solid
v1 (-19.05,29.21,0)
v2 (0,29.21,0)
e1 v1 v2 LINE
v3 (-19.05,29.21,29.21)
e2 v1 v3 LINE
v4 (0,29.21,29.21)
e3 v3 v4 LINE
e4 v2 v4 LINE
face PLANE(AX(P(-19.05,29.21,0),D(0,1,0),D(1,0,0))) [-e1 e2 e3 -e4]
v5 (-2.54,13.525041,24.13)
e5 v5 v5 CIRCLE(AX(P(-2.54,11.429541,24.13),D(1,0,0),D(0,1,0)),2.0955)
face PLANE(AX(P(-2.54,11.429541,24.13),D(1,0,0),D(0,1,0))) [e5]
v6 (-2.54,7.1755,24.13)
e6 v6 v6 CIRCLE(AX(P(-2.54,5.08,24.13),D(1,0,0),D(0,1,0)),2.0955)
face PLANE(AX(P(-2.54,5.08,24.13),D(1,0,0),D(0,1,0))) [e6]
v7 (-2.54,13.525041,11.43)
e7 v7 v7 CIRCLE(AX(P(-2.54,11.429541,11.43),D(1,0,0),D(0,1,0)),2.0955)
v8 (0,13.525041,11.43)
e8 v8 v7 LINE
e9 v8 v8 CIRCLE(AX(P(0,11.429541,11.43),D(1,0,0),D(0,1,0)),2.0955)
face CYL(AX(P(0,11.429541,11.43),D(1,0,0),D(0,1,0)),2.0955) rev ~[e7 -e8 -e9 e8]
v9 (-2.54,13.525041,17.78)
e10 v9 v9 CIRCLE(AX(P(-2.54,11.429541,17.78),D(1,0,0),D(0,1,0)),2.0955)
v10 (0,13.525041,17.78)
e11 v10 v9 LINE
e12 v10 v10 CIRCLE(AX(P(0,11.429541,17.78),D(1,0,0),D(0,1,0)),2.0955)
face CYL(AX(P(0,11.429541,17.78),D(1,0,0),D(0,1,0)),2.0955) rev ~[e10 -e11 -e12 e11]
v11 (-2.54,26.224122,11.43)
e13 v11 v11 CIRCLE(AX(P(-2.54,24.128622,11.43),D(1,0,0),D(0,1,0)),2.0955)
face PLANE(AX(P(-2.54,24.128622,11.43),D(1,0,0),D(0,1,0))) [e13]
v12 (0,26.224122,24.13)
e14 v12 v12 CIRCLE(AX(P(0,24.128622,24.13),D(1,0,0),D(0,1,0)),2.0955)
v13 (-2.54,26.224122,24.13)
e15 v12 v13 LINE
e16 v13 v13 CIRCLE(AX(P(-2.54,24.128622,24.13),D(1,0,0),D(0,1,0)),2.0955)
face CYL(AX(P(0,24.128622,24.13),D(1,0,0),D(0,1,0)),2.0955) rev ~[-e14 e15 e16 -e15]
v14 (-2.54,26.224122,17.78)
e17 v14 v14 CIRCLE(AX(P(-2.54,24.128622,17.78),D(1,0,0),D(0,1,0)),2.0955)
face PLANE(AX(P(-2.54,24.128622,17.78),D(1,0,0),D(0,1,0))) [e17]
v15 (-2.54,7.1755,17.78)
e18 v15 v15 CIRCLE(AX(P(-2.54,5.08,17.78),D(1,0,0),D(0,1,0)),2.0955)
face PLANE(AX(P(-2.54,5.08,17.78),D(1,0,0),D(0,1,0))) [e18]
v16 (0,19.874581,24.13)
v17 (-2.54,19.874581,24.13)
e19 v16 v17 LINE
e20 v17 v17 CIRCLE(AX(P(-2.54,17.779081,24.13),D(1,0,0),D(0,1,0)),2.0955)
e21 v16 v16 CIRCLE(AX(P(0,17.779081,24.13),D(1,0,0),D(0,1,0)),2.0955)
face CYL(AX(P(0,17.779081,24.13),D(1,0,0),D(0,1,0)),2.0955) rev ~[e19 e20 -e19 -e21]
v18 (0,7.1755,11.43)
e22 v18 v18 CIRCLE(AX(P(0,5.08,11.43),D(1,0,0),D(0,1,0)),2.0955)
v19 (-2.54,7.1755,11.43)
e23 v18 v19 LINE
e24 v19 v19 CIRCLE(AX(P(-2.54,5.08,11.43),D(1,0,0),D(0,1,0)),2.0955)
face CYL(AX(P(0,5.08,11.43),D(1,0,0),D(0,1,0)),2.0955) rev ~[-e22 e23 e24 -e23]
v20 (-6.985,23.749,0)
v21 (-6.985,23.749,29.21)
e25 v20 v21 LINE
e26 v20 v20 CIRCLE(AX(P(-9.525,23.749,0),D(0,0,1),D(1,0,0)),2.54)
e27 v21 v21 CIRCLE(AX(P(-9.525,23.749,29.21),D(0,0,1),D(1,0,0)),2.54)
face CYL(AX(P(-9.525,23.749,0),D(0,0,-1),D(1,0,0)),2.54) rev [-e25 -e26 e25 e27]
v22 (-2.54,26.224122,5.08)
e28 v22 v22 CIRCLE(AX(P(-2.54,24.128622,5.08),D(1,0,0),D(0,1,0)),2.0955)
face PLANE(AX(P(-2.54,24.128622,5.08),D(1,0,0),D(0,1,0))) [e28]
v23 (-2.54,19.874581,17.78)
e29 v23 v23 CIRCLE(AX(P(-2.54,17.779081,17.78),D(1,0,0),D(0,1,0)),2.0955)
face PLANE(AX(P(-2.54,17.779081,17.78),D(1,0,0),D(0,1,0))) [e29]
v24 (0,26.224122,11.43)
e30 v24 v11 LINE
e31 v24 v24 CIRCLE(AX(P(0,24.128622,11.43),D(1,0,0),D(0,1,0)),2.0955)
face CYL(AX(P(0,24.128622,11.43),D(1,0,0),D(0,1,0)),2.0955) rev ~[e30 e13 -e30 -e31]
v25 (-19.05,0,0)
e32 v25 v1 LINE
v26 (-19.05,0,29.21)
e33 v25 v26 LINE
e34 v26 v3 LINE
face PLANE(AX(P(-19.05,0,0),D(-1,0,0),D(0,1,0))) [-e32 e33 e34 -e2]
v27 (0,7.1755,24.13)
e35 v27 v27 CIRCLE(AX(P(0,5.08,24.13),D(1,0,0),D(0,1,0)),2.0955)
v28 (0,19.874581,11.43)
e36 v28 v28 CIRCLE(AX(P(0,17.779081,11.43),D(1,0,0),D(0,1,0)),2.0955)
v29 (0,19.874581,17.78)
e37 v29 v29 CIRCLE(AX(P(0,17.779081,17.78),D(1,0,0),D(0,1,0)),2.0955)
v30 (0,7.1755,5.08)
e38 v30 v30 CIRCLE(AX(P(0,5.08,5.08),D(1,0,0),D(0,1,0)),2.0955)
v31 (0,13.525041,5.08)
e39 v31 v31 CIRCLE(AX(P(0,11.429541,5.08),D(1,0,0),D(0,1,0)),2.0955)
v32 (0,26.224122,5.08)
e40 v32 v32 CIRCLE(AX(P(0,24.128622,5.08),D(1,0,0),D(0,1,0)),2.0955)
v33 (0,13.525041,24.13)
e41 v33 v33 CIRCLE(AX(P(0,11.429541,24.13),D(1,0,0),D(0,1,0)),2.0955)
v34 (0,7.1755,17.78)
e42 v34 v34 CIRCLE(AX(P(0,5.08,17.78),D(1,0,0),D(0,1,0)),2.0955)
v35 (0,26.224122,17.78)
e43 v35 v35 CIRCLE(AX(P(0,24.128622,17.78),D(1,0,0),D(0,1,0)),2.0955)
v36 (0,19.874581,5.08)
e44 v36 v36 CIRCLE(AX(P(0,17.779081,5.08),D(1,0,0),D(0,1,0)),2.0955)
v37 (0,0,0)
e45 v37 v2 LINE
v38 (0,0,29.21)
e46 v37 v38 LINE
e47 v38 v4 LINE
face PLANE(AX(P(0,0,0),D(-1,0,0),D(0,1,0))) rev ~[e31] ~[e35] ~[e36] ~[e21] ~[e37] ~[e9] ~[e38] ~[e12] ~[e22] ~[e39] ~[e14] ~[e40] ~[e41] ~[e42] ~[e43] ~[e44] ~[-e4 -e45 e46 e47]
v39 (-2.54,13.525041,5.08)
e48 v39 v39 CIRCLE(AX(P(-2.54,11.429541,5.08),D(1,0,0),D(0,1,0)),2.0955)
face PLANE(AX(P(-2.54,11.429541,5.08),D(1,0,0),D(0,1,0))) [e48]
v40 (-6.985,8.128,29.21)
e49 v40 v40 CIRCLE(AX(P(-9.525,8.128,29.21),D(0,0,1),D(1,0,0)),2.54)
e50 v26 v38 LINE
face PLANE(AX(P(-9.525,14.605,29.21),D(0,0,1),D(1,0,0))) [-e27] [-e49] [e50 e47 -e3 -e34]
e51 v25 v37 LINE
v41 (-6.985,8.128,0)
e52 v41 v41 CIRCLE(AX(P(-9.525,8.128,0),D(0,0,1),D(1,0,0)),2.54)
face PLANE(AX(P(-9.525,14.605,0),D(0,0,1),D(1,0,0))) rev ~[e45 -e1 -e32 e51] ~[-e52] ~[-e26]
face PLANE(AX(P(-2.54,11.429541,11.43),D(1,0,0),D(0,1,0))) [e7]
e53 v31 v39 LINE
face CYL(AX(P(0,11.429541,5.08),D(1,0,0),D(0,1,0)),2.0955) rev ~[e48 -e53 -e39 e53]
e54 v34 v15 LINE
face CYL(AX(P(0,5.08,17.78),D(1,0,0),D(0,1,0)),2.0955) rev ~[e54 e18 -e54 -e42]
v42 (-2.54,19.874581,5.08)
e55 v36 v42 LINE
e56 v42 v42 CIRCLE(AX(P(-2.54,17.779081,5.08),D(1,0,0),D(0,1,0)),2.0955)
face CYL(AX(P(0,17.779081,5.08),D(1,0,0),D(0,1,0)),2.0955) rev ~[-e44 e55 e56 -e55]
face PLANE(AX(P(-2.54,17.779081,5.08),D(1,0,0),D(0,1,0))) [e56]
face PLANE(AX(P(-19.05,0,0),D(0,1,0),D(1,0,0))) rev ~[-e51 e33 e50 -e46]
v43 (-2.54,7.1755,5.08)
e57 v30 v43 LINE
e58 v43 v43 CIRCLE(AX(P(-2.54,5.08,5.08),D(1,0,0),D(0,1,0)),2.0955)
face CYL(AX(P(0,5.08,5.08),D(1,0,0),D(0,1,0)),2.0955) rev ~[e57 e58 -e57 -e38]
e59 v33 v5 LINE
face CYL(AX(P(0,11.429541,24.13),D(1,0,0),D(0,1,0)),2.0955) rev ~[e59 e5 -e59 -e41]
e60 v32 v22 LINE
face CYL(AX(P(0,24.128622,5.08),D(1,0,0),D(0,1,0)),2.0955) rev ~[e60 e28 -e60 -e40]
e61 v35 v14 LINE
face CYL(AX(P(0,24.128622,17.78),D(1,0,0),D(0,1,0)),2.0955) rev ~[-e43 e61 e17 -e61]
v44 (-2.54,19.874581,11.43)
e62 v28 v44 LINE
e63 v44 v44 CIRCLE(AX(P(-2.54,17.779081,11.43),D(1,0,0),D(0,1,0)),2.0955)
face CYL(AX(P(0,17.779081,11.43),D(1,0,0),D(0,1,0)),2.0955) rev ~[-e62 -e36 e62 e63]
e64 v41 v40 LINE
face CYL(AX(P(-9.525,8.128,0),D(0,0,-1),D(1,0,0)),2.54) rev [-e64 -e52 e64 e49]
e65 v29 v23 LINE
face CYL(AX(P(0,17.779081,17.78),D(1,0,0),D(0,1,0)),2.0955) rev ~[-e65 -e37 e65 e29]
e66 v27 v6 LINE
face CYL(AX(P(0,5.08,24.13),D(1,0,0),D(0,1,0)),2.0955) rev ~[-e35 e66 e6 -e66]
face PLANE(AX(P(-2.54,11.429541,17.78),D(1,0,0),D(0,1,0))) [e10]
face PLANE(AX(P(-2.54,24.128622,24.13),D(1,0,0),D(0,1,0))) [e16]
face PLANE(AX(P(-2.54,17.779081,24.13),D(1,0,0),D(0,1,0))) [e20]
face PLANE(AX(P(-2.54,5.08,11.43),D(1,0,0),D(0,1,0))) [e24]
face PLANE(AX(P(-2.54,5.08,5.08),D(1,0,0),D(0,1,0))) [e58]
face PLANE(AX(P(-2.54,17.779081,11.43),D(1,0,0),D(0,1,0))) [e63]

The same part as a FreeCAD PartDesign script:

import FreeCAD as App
import Part
import Sketcher
from FreeCAD import Vector
Q = App.Units.Quantity


def add_polygon(sketch, points):
    """Adds a closed chain of lines whose ends are joined by coincident constraints."""
    first, n = sketch.GeometryCount, len(points)
    for a, b in zip(points, points[1:] + points[:1]):
        sketch.addGeometry(Part.LineSegment(App.Vector(*a, 0), App.Vector(*b, 0)), False)
    for i in range(n):
        sketch.addConstraint(Sketcher.Constraint("Coincident", first + i, 2, first + (i + 1) % n, 1))

doc = App.newDocument("Part")
body = doc.addObject("PartDesign::Body", "Body")

# Sketch on XY plane
sketch1 = body.newObject("Sketcher::SketchObject", "Sketch")
sketch1.AttachmentSupport = (doc.getObject("XY_Plane"), [""])
sketch1.MapMode = "FlatFace"
add_polygon(sketch1, [(-19.05, 29.21), (-19.05, 0), (0, 0), (0, 29.21)])  # lines 0-3
sketch1.addGeometry(Part.Circle(Vector(-9.525, 8.128, 0), Vector(0, 0, 1), 2.54), False)  # 4
sketch1.addGeometry(Part.Circle(Vector(-9.525, 23.749, 0), Vector(0, 0, 1), 2.54), False)  # 5
sketch1.addConstraint(Sketcher.Constraint("Vertical", 0))
sketch1.addConstraint(Sketcher.Constraint("Horizontal", 1))
sketch1.addConstraint(Sketcher.Constraint("Vertical", 2))
sketch1.addConstraint(Sketcher.Constraint("Horizontal", 3))
sketch1.addConstraint(Sketcher.Constraint("Coincident", 1, 2, -1, 1))
sketch1.addConstraint(Sketcher.Constraint("Equal", 4, 5))
sketch1.addConstraint(Sketcher.Constraint("Vertical", 4, 3, 5, 3))
sketch1.addConstraint(Sketcher.Constraint("Diameter", 4, Q("0.2 in")))
sketch1.addConstraint(Sketcher.Constraint("DistanceX", 1, 1, 1, 2, Q("0.75 in")))
sketch1.addConstraint(Sketcher.Constraint("DistanceY", 0, 2, 0, 1, Q("1.15 in")))
sketch1.addConstraint(Sketcher.Constraint("DistanceY", -1, 1, 4, 3, Q("0.32 in")))
sketch1.addConstraint(Sketcher.Constraint("DistanceX", 4, 3, -1, 1, Q("0.375 in")))
sketch1.addConstraint(Sketcher.Constraint("DistanceY", -1, 1, 5, 3, Q("0.935 in")))
pad1 = body.newObject("PartDesign::Pad", "Pad")
pad1.Profile = sketch1
pad1.Length = Q("1.15 in")

# Sketch on YZ plane
sketch2 = body.newObject("Sketcher::SketchObject", "Sketch001")
sketch2.AttachmentSupport = (doc.getObject("YZ_Plane"), [""])
sketch2.MapMode = "FlatFace"
sketch2.addGeometry(Part.Circle(Vector(5.08, 24.13, 0), Vector(0, 0, 1), 2.0955), False)
sketch2.addGeometry(Part.Circle(Vector(11.429541, 24.13, 0), Vector(0, 0, 1), 2.0955), False)
sketch2.addGeometry(Part.Circle(Vector(17.779081, 24.13, 0), Vector(0, 0, 1), 2.0955), False)
sketch2.addGeometry(Part.Circle(Vector(24.128622, 24.13, 0), Vector(0, 0, 1), 2.0955), False)
sketch2.addGeometry(Part.Circle(Vector(24.128622, 17.78, 0), Vector(0, 0, 1), 2.0955), False)
sketch2.addGeometry(Part.Circle(Vector(17.779081, 17.78, 0), Vector(0, 0, 1), 2.0955), False)
sketch2.addGeometry(Part.Circle(Vector(11.429541, 17.78, 0), Vector(0, 0, 1), 2.0955), False)
sketch2.addGeometry(Part.Circle(Vector(5.08, 17.78, 0), Vector(0, 0, 1), 2.0955), False)
sketch2.addGeometry(Part.Circle(Vector(24.128622, 11.43, 0), Vector(0, 0, 1), 2.0955), False)
sketch2.addGeometry(Part.Circle(Vector(17.779081, 11.43, 0), Vector(0, 0, 1), 2.0955), False)
sketch2.addGeometry(Part.Circle(Vector(11.429541, 11.43, 0), Vector(0, 0, 1), 2.0955), False)
sketch2.addGeometry(Part.Circle(Vector(5.08, 11.43, 0), Vector(0, 0, 1), 2.0955), False)
sketch2.addGeometry(Part.Circle(Vector(24.128622, 5.08, 0), Vector(0, 0, 1), 2.0955), False)
sketch2.addGeometry(Part.Circle(Vector(17.779081, 5.08, 0), Vector(0, 0, 1), 2.0955), False)
sketch2.addGeometry(Part.Circle(Vector(11.429541, 5.08, 0), Vector(0, 0, 1), 2.0955), False)
sketch2.addGeometry(Part.Circle(Vector(5.08, 5.08, 0), Vector(0, 0, 1), 2.0955), False)
sketch2.addConstraint(Sketcher.Constraint("Equal", 0, 1))
sketch2.addConstraint(Sketcher.Constraint("Equal", 1, 2))
sketch2.addConstraint(Sketcher.Constraint("Equal", 2, 3))
sketch2.addConstraint(Sketcher.Constraint("Equal", 3, 4))
sketch2.addConstraint(Sketcher.Constraint("Equal", 4, 5))
sketch2.addConstraint(Sketcher.Constraint("Equal", 5, 6))
sketch2.addConstraint(Sketcher.Constraint("Equal", 6, 7))
sketch2.addConstraint(Sketcher.Constraint("Equal", 7, 8))
sketch2.addConstraint(Sketcher.Constraint("Equal", 8, 9))
sketch2.addConstraint(Sketcher.Constraint("Equal", 9, 10))
sketch2.addConstraint(Sketcher.Constraint("Equal", 10, 11))
sketch2.addConstraint(Sketcher.Constraint("Equal", 11, 12))
sketch2.addConstraint(Sketcher.Constraint("Equal", 12, 13))
sketch2.addConstraint(Sketcher.Constraint("Equal", 13, 14))
sketch2.addConstraint(Sketcher.Constraint("Equal", 14, 15))
sketch2.addConstraint(Sketcher.Constraint("Horizontal", 0, 3, 1, 3))
sketch2.addConstraint(Sketcher.Constraint("Horizontal", 1, 3, 2, 3))
sketch2.addConstraint(Sketcher.Constraint("Horizontal", 2, 3, 3, 3))
sketch2.addConstraint(Sketcher.Constraint("Horizontal", 4, 3, 5, 3))
sketch2.addConstraint(Sketcher.Constraint("Horizontal", 5, 3, 6, 3))
sketch2.addConstraint(Sketcher.Constraint("Horizontal", 6, 3, 7, 3))
sketch2.addConstraint(Sketcher.Constraint("Horizontal", 8, 3, 9, 3))
sketch2.addConstraint(Sketcher.Constraint("Horizontal", 9, 3, 10, 3))
sketch2.addConstraint(Sketcher.Constraint("Horizontal", 10, 3, 11, 3))
sketch2.addConstraint(Sketcher.Constraint("Horizontal", 12, 3, 13, 3))
sketch2.addConstraint(Sketcher.Constraint("Horizontal", 13, 3, 14, 3))
sketch2.addConstraint(Sketcher.Constraint("Horizontal", 14, 3, 15, 3))
sketch2.addConstraint(Sketcher.Constraint("Vertical", 3, 3, 4, 3))
sketch2.addConstraint(Sketcher.Constraint("Vertical", 2, 3, 5, 3))
sketch2.addConstraint(Sketcher.Constraint("Vertical", 1, 3, 6, 3))
sketch2.addConstraint(Sketcher.Constraint("Vertical", 0, 3, 7, 3))
sketch2.addConstraint(Sketcher.Constraint("Vertical", 4, 3, 8, 3))
sketch2.addConstraint(Sketcher.Constraint("Vertical", 5, 3, 9, 3))
sketch2.addConstraint(Sketcher.Constraint("Vertical", 6, 3, 10, 3))
sketch2.addConstraint(Sketcher.Constraint("Vertical", 7, 3, 11, 3))
sketch2.addConstraint(Sketcher.Constraint("Vertical", 8, 3, 12, 3))
sketch2.addConstraint(Sketcher.Constraint("Vertical", 9, 3, 13, 3))
sketch2.addConstraint(Sketcher.Constraint("Vertical", 10, 3, 14, 3))
sketch2.addConstraint(Sketcher.Constraint("Vertical", 11, 3, 15, 3))
sketch2.addConstraint(Sketcher.Constraint("Diameter", 0, Q("0.165 in")))
sketch2.addConstraint(Sketcher.Constraint("DistanceX", -1, 1, 0, 3, Q("0.2 in")))
sketch2.addConstraint(Sketcher.Constraint("DistanceY", -1, 1, 4, 3, Q("0.7 in")))
sketch2.addConstraint(Sketcher.Constraint("DistanceY", -1, 1, 12, 3, Q("0.2 in")))
sketch2.addConstraint(Sketcher.Constraint("DistanceY", 8, 3, 3, 3, Q("0.5 in")))
sketch2.addConstraint(Sketcher.Constraint("DistanceY", -1, 1, 0, 3, Q("0.95 in")))
sketch2.addConstraint(Sketcher.Constraint("DistanceX", -1, 1, 1, 3, 11.429541))
sketch2.addConstraint(Sketcher.Constraint("DistanceX", -1, 1, 2, 3, 17.779081))
sketch2.addConstraint(Sketcher.Constraint("DistanceX", -1, 1, 3, 3, 24.128622))
pocket1 = body.newObject("PartDesign::Pocket", "Pocket")
pocket1.Profile = sketch2
pocket1.Length = Q("0.1 in")

doc.recompute()
